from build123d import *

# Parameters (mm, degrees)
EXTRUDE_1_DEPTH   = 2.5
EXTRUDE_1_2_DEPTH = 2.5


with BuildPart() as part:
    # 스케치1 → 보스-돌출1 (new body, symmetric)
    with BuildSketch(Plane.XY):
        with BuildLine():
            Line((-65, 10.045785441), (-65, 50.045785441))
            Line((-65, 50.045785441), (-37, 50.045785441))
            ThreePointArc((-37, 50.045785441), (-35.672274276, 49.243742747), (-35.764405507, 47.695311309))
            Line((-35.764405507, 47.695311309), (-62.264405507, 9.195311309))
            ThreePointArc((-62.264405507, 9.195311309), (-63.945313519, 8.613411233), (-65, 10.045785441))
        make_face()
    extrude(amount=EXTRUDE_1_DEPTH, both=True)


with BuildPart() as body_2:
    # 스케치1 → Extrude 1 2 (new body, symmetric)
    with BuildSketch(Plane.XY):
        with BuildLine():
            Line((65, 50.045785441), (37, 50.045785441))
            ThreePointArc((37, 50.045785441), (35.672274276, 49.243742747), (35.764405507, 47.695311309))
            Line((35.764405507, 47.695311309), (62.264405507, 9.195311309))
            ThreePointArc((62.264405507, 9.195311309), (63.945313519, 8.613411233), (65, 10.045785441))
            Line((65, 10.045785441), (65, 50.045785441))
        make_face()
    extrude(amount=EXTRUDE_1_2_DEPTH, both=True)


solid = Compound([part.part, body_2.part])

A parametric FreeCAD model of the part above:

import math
import FreeCAD as App
import Part
import Sketcher
from FreeCAD import Vector
Q = App.Units.Quantity

doc = App.newDocument("Part")
body = doc.addObject("PartDesign::Body", "Body")

# Sketch on XY plane
sketch1 = body.newObject("Sketcher::SketchObject", "Sketch")
sketch1.AttachmentSupport = (doc.getObject("XY_Plane"), [""])
sketch1.MapMode = "FlatFace"
sketch1.addGeometry(Part.LineSegment(Vector(-65, 50, 0), Vector(-65, 10, 0)), False)
sketch1.addGeometry(Part.ArcOfCircle(Part.Circle(Vector(-63.5, 10, 0), Vector(0, 0, 1), 1.5), math.radians(180), math.radians(325)), False)
sketch1.addGeometry(Part.LineSegment(Vector(-62.3, 9.2, 0), Vector(-35.8, 47.7, 0)), False)
sketch1.addGeometry(Part.ArcOfCircle(Part.Circle(Vector(-37, 48.5, 0), Vector(0, 0, 1), 1.5), math.radians(-35), math.radians(90)), False)
sketch1.addGeometry(Part.LineSegment(Vector(-37, 50, 0), Vector(-65, 50, 0)), False)
sketch1.addConstraint(Sketcher.Constraint("Tangent", 0, 2, 1, 1))
sketch1.addConstraint(Sketcher.Constraint("Tangent", 1, 2, 2, 1))
sketch1.addConstraint(Sketcher.Constraint("Tangent", 2, 2, 3, 1))
sketch1.addConstraint(Sketcher.Constraint("Tangent", 3, 2, 4, 1))
sketch1.addConstraint(Sketcher.Constraint("Coincident", 4, 2, 0, 1))
sketch1.addConstraint(Sketcher.Constraint("Vertical", 0))
sketch1.addConstraint(Sketcher.Constraint("Horizontal", 4))
sketch1.addConstraint(Sketcher.Constraint("Equal", 1, 3))
sketch1.addConstraint(Sketcher.Constraint("Radius", 1, Q("1.5 mm")))
sketch1.addConstraint(Sketcher.Constraint("DistanceX", 4, 2, 4, 1, Q("28 mm")))
sketch1.addConstraint(Sketcher.Constraint("DistanceY", 0, 2, 0, 1, Q("40 mm")))
sketch1.addConstraint(Sketcher.Constraint("DistanceX", 3, 3, -1, 1, Q("37 mm")))
sketch1.addConstraint(Sketcher.Constraint("DistanceY", -1, 1, 1, 2, Q("9.195311 mm")))
pad1 = body.newObject("PartDesign::Pad", "Pad")
pad1.Profile = sketch1
pad1.Length = 5
pad1.Midplane = True
body2 = doc.addObject("PartDesign::Body", "Body001")

# Sketch on XY plane
sketch2 = body2.newObject("Sketcher::SketchObject", "Sketch001")
sketch2.AttachmentSupport = (doc.getObject("XY_Plane001"), [""])
sketch2.MapMode = "FlatFace"
sketch2.addGeometry(Part.LineSegment(Vector(65, 50, 0), Vector(37, 50, 0)), False)
sketch2.addGeometry(Part.ArcOfCircle(Part.Circle(Vector(37, 48.5, 0), Vector(0, 0, 1), 1.5), math.radians(90), math.radians(215)), False)
sketch2.addGeometry(Part.LineSegment(Vector(35.8, 47.7, 0), Vector(62.3, 9.2, 0)), False)
sketch2.addGeometry(Part.ArcOfCircle(Part.Circle(Vector(63.5, 10, 0), Vector(0, 0, 1), 1.5), math.radians(-145), math.radians(0)), False)
sketch2.addGeometry(Part.LineSegment(Vector(65, 10, 0), Vector(65, 50, 0)), False)
sketch2.addConstraint(Sketcher.Constraint("Tangent", 0, 2, 1, 1))
sketch2.addConstraint(Sketcher.Constraint("Tangent", 1, 2, 2, 1))
sketch2.addConstraint(Sketcher.Constraint("Tangent", 2, 2, 3, 1))
sketch2.addConstraint(Sketcher.Constraint("Tangent", 3, 2, 4, 1))
sketch2.addConstraint(Sketcher.Constraint("Coincident", 4, 2, 0, 1))
sketch2.addConstraint(Sketcher.Constraint("Horizontal", 0))
sketch2.addConstraint(Sketcher.Constraint("Vertical", 4))
sketch2.addConstraint(Sketcher.Constraint("Equal", 1, 3))
sketch2.addConstraint(Sketcher.Constraint("Radius", 1, Q("1.5 mm")))
sketch2.addConstraint(Sketcher.Constraint("DistanceX", 0, 2, 0, 1, Q("28 mm")))
sketch2.addConstraint(Sketcher.Constraint("DistanceY", 4, 1, 4, 2, Q("40 mm")))
sketch2.addConstraint(Sketcher.Constraint("DistanceX", -1, 1, 1, 3, Q("37 mm")))
sketch2.addConstraint(Sketcher.Constraint("DistanceY", -1, 1, 1, 2, Q("47.695311 mm")))
pad2 = body2.newObject("PartDesign::Pad", "Pad001")
pad2.Profile = sketch2
pad2.Length = 5
pad2.Midplane = True

doc.recompute()
